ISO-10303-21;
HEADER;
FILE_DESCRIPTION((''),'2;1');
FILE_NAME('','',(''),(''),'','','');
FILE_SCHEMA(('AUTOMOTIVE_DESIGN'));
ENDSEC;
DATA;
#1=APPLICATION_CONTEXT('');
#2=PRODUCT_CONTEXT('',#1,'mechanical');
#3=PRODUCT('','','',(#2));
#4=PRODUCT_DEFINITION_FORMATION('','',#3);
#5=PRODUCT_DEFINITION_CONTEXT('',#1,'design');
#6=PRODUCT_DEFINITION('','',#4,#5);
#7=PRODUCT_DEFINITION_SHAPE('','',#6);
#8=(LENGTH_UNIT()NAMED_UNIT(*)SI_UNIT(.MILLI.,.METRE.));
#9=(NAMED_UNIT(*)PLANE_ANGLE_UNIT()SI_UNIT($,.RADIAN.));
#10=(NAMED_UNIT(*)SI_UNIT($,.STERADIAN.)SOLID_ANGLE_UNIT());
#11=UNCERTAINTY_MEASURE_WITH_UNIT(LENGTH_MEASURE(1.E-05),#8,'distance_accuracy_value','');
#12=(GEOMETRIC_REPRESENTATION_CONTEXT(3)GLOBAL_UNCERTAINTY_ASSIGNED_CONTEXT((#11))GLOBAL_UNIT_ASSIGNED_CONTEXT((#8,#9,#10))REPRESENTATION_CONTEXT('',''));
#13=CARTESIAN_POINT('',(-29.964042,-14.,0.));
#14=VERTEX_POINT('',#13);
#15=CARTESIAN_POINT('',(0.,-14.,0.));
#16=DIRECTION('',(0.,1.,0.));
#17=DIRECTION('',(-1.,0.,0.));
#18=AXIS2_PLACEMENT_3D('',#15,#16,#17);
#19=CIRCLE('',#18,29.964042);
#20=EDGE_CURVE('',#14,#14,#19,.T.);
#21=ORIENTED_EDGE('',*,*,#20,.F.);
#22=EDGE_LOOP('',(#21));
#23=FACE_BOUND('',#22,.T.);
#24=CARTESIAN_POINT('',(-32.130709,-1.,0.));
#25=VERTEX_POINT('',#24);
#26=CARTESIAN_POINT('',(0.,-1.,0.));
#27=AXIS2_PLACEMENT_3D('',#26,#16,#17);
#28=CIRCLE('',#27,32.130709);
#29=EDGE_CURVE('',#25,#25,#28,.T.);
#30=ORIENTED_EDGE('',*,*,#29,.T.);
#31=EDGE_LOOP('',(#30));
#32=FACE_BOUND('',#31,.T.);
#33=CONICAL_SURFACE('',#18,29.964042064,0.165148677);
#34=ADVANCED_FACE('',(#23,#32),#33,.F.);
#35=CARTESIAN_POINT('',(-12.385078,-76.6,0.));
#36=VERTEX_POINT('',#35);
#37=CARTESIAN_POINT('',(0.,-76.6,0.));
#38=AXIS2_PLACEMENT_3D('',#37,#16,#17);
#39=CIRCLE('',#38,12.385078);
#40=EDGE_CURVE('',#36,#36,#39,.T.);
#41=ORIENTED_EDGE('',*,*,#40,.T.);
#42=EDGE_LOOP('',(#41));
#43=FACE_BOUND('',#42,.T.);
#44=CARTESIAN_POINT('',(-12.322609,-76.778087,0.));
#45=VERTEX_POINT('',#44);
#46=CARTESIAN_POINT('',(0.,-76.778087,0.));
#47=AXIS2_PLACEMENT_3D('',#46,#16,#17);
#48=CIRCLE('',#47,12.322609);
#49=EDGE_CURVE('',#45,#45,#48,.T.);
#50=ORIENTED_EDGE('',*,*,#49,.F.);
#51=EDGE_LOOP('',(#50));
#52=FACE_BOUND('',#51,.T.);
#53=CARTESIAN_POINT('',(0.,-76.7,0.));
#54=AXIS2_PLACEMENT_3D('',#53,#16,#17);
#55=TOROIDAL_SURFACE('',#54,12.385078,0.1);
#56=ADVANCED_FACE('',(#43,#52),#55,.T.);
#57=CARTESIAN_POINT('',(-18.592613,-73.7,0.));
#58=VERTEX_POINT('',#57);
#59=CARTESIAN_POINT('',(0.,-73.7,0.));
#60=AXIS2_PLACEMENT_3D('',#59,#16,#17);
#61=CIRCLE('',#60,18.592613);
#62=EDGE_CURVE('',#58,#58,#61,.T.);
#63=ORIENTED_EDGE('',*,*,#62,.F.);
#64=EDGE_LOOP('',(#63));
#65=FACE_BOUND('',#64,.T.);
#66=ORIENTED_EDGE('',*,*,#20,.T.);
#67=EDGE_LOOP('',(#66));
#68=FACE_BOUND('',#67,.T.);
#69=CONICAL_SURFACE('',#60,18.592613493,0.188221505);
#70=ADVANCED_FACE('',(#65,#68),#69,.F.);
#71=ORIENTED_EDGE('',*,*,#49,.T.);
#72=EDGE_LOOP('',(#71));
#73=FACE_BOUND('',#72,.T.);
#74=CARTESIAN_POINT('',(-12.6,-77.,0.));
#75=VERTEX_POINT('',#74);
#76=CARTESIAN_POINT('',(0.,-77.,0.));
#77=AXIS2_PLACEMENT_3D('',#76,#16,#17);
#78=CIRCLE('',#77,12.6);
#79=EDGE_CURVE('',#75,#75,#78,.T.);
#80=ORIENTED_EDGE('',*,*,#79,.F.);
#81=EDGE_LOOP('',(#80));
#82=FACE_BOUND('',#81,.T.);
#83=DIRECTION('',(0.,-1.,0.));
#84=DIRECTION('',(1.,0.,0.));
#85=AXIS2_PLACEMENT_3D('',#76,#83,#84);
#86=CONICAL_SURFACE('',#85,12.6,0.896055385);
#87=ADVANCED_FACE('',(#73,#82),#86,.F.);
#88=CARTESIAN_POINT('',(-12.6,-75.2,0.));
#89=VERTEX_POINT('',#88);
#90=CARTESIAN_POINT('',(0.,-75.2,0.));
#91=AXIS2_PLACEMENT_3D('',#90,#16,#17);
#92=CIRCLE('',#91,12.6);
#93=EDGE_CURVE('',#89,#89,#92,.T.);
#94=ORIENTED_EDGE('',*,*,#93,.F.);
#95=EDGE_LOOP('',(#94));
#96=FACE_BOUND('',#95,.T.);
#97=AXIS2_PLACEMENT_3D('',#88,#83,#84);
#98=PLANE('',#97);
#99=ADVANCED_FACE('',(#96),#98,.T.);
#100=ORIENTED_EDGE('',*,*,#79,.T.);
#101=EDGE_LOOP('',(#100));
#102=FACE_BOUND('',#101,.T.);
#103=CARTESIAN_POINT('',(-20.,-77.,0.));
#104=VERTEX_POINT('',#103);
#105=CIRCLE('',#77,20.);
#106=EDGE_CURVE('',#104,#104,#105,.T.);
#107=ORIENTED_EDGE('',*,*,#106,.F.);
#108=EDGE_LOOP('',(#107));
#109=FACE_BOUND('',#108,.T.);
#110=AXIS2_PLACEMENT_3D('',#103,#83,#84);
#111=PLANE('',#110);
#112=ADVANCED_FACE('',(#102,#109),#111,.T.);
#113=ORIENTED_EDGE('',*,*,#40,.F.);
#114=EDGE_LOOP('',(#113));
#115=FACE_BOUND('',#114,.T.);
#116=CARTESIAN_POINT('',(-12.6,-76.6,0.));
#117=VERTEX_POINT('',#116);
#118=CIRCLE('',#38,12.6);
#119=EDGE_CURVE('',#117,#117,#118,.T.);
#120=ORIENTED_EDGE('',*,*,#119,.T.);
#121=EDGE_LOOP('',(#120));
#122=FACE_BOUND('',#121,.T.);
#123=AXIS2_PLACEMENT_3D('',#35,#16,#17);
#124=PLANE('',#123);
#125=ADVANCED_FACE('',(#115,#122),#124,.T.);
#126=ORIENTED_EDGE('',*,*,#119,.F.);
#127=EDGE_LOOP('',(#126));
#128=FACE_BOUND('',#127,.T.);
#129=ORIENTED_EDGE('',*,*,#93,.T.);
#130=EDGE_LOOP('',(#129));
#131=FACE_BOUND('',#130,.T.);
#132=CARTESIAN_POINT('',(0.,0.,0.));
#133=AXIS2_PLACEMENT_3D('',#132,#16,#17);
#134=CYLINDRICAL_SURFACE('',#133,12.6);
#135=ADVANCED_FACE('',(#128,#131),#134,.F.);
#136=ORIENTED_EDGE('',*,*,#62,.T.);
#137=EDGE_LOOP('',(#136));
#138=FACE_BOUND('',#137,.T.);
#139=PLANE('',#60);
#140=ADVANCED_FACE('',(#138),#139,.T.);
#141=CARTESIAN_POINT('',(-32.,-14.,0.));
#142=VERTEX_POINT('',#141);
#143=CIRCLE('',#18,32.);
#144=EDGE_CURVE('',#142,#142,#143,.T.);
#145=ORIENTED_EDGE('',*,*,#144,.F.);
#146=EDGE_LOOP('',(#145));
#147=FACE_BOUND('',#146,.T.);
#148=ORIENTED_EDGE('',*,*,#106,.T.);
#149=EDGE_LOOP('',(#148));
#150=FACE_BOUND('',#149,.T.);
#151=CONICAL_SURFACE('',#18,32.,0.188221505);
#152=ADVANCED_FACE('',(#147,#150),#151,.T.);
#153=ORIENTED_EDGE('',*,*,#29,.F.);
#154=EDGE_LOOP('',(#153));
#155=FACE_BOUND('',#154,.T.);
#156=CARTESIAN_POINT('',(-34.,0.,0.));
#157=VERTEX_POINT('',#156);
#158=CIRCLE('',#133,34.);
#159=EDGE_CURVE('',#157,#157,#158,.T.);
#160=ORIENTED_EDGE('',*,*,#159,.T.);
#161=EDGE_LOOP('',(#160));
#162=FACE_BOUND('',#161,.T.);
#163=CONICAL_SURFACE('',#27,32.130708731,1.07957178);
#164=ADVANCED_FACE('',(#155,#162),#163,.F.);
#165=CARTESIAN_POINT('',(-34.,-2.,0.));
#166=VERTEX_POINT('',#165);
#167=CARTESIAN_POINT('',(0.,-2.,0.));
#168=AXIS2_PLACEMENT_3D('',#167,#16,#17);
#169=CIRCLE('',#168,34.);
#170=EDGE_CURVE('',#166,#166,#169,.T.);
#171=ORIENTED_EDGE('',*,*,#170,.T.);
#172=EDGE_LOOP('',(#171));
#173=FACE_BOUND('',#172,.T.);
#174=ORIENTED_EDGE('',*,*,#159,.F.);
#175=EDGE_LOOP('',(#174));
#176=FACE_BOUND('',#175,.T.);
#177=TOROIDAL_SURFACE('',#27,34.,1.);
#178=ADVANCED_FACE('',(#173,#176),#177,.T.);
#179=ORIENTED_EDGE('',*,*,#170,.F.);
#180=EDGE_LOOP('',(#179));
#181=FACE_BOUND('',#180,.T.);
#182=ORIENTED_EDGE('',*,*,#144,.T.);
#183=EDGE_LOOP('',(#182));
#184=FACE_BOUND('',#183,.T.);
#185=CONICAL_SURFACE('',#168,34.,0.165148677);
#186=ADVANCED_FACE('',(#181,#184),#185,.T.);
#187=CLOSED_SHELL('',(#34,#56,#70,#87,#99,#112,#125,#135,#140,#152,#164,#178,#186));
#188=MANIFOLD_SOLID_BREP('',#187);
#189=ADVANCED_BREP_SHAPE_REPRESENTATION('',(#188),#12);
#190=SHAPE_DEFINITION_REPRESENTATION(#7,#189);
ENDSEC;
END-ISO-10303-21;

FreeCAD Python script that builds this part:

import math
import FreeCAD as App
import Part
import Sketcher
Q = App.Units.Quantity

doc = App.newDocument("Part")
body = doc.addObject("PartDesign::Body", "Body")

# Sketch on XY plane
sketch1 = body.newObject("Sketcher::SketchObject", "Sketch")
sketch1.AttachmentSupport = (doc.getObject("XY_Plane"), [""])
sketch1.MapMode = "FlatFace"
sketch1.addGeometry([
    Part.LineSegment(App.Vector(-32.130709, -1, 0), App.Vector(-34, 0, 0)),  # 0
    Part.ArcOfCircle(Part.Circle(App.Vector(-34, -1, 0), App.Vector(0, 0, 1), 1), math.radians(90), math.radians(270)),  # 1
    Part.LineSegment(App.Vector(-34, -2, 0), App.Vector(-32, -14, 0)),  # 2
    Part.LineSegment(App.Vector(-32, -14, 0), App.Vector(-20, -77, 0)),  # 3
    Part.LineSegment(App.Vector(-20, -77, 0), App.Vector(-12.6, -77, 0)),  # 4
    Part.LineSegment(App.Vector(-12.6, -77, 0), App.Vector(-12.322609, -76.778087, 0)),  # 5
    Part.ArcOfCircle(Part.Circle(App.Vector(-12.385078, -76.7, 0), App.Vector(0, 0, 1), 0.1), math.radians(-51.340192), math.radians(90)),  # 6
    Part.LineSegment(App.Vector(-12.385078, -76.6, 0), App.Vector(-12.6, -76.6, 0)),  # 7
    Part.LineSegment(App.Vector(-12.6, -76.6, 0), App.Vector(-12.6, -75.2, 0)),  # 8
    Part.LineSegment(App.Vector(-12.6, -75.2, 0), App.Vector(0, -75.2, 0)),  # 9
    Part.LineSegment(App.Vector(0, -75.2, 0), App.Vector(0, -73.7, 0)),  # 10
    Part.LineSegment(App.Vector(0, -73.7, 0), App.Vector(-18.592613, -73.7, 0)),  # 11
    Part.LineSegment(App.Vector(-18.592613, -73.7, 0), App.Vector(-29.964042, -14, 0)),  # 12
    Part.LineSegment(App.Vector(-29.964042, -14, 0), App.Vector(-32.130709, -1, 0)),  # 13
], False)
sketch1.addConstraint([
    Sketcher.Constraint("Coincident", 0, 2, 1, 1),
    Sketcher.Constraint("Coincident", 1, 2, 2, 1),
    Sketcher.Constraint("Coincident", 2, 2, 3, 1),
    Sketcher.Constraint("Coincident", 3, 2, 4, 1),
    Sketcher.Constraint("Coincident", 4, 2, 5, 1),
    Sketcher.Constraint("Tangent", 5, 2, 6, 1),
    Sketcher.Constraint("Tangent", 6, 2, 7, 1),
    Sketcher.Constraint("Coincident", 7, 2, 8, 1),
    Sketcher.Constraint("Coincident", 8, 2, 9, 1),
    Sketcher.Constraint("Coincident", 9, 2, 10, 1),
    Sketcher.Constraint("Coincident", 10, 2, 11, 1),
    Sketcher.Constraint("Coincident", 11, 2, 12, 1),
    Sketcher.Constraint("Coincident", 12, 2, 13, 1),
    Sketcher.Constraint("Coincident", 13, 2, 0, 1),
    Sketcher.Constraint("Horizontal", 4),
    Sketcher.Constraint("Horizontal", 7),
    Sketcher.Constraint("Vertical", 8),
    Sketcher.Constraint("Horizontal", 9),
    Sketcher.Constraint("Vertical", 10),
    Sketcher.Constraint("Horizontal", 11),
    Sketcher.Constraint("PointOnObject", 0, 2, -1),
    Sketcher.Constraint("PointOnObject", 9, 2, -2),
    Sketcher.Constraint("Parallel", 3, 12),
    Sketcher.Constraint("Parallel", 2, 13),
    Sketcher.Constraint("Horizontal", 2, 2, 12, 2),
    Sketcher.Constraint("Horizontal", 1, 3, 13, 2),
    Sketcher.Constraint("Vertical", 1, 3, 0, 2),
    Sketcher.Constraint("Vertical", 0, 2, 1, 2),
    Sketcher.Constraint("Vertical", 4, 2, 7, 2),
    Sketcher.Constraint("Radius", 1, Q("1 mm")),
    Sketcher.Constraint("Radius", 6, Q("0.1 mm")),
    Sketcher.Constraint("DistanceX", 4, 1, 4, 2, Q("7.4 mm")),
    Sketcher.Constraint("DistanceX", 9, 1, 9, 2, Q("12.6 mm")),
    Sketcher.Constraint("DistanceY", 8, 1, 8, 2, Q("1.4 mm")),
    Sketcher.Constraint("DistanceY", 10, 1, 10, 2, Q("1.5 mm")),
    Sketcher.Constraint("DistanceX", 1, 3, -1, 1, Q("34 mm")),
    Sketcher.Constraint("DistanceX", 2, 2, -1, 1, Q("32 mm")),
    Sketcher.Constraint("DistanceY", 2, 2, -1, 1, Q("14 mm")),
    Sketcher.Constraint("DistanceY", 3, 2, -1, 1, Q("77 mm")),
    Sketcher.Constraint("DistanceY", 6, 3, -1, 1, Q("76.7 mm")),
    Sketcher.Constraint("DistanceX", 7, 2, 7, 1, Q("0.214922 mm")),
    Sketcher.Constraint("DistanceX", 11, 2, 11, 1, Q("18.592613 mm")),
])
revolution = body.newObject("PartDesign::Revolution", "Revolution")
revolution.Profile = sketch1
revolution.ReferenceAxis = (sketch1, ["V_Axis"])
revolution.Angle = 360

doc.recompute()
